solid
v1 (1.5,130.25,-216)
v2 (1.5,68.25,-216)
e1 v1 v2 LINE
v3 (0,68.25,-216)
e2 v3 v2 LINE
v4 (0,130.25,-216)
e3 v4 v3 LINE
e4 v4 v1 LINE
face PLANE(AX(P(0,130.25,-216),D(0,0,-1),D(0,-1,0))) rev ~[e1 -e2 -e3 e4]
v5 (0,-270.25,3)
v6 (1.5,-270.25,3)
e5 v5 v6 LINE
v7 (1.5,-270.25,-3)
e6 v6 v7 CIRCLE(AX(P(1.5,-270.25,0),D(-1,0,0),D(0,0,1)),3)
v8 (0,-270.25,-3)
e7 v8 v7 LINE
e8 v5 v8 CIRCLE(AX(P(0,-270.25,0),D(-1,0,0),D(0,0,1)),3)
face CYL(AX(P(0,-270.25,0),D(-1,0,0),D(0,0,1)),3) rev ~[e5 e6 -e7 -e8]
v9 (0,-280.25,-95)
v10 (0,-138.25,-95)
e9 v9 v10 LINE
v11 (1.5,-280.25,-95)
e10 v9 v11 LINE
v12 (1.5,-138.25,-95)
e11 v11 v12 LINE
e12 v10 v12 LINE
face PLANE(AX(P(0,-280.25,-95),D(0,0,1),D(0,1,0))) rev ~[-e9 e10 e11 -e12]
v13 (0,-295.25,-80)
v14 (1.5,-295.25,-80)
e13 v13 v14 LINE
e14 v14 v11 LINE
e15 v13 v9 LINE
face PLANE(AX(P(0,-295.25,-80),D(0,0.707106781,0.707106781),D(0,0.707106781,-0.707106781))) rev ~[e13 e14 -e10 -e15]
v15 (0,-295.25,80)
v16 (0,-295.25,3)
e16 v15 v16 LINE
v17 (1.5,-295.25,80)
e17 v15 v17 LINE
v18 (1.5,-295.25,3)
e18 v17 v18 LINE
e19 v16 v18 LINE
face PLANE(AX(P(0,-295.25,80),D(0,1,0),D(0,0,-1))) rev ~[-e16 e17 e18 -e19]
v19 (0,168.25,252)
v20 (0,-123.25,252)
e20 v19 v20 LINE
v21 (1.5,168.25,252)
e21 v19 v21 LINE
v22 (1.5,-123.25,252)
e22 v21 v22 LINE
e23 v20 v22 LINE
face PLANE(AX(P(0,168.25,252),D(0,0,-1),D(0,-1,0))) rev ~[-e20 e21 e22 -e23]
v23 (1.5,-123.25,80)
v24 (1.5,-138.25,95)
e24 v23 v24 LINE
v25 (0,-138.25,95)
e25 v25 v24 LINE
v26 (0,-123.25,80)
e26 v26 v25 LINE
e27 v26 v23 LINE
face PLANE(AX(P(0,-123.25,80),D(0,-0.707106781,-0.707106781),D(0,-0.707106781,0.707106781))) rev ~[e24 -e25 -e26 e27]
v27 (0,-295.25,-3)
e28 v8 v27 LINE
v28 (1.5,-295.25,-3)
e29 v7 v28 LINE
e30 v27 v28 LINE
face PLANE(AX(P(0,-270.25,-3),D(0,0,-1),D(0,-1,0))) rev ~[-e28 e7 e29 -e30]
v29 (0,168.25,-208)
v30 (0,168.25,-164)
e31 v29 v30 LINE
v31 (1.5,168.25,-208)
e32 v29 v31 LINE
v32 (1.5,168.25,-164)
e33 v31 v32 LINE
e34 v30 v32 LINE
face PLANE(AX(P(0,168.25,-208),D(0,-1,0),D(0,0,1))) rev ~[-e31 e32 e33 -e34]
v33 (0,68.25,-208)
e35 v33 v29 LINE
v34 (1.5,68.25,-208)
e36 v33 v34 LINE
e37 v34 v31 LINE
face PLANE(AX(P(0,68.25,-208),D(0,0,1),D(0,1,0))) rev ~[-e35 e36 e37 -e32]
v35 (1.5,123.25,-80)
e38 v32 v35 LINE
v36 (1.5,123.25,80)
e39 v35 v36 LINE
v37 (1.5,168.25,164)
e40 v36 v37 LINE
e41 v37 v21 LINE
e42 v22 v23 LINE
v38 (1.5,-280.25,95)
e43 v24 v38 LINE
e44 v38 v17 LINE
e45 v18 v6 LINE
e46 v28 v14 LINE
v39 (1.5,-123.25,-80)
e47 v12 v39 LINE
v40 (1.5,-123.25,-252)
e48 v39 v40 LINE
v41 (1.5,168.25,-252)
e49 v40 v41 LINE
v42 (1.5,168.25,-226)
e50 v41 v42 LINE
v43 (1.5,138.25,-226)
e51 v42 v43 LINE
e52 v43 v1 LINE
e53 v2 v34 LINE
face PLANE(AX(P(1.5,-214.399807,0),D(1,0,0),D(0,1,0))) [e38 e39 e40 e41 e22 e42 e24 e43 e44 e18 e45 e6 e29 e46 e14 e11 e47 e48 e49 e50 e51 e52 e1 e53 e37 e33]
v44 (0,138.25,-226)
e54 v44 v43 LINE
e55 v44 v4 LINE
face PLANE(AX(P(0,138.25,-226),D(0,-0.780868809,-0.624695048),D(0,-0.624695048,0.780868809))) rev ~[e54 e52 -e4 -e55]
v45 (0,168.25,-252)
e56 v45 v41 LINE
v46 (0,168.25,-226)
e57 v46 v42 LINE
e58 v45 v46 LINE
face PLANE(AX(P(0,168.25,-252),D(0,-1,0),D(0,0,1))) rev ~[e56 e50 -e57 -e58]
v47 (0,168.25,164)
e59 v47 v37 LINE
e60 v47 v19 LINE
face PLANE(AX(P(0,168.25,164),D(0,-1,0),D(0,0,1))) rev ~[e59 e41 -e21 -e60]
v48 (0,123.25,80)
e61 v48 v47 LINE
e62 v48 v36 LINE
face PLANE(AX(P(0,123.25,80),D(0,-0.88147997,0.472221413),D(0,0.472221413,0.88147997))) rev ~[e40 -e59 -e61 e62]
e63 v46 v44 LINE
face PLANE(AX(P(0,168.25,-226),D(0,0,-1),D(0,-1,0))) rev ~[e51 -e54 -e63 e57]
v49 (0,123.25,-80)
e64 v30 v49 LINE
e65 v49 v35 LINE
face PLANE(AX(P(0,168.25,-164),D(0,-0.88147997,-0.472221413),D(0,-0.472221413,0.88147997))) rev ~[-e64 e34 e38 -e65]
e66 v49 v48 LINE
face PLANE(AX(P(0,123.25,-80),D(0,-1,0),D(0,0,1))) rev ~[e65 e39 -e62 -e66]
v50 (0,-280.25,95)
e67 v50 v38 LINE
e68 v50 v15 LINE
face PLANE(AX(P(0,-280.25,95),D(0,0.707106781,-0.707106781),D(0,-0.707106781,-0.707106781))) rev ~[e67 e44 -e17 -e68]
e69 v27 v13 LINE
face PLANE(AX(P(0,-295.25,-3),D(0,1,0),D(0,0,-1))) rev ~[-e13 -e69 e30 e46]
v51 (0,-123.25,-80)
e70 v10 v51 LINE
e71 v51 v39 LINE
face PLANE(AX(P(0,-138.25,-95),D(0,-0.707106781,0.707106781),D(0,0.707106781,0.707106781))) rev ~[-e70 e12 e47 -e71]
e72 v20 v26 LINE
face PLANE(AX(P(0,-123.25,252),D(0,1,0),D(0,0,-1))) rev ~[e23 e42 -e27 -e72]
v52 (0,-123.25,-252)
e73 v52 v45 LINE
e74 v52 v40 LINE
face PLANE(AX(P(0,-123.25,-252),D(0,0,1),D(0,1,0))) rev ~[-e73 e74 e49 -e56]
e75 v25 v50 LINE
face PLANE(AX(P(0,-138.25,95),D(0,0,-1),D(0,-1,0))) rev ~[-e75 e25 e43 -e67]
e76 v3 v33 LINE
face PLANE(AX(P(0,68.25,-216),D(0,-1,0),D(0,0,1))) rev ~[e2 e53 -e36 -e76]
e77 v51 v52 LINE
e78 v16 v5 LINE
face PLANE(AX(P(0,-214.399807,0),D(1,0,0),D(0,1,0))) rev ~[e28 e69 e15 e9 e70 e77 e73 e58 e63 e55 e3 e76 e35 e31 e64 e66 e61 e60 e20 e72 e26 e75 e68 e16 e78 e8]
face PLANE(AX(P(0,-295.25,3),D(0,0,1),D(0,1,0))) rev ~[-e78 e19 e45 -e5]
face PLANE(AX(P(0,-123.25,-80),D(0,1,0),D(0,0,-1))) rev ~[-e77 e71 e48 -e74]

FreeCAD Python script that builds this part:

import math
import FreeCAD as App
import Part
import Sketcher
from FreeCAD import Vector
Q = App.Units.Quantity

doc = App.newDocument("Part")
body = doc.addObject("PartDesign::Body", "Body")

sketch1 = body.newObject("Sketcher::SketchObject", "Sketch")
sketch1.AttachmentSupport = (doc.getObject("YZ_Plane"), [""])
sketch1.MapMode = "FlatFace"
sketch1.addGeometry([
    Part.LineSegment(Vector(-123.25, 80, 0), Vector(-138.25, 95, 0)),
    Part.LineSegment(Vector(-138.25, 95, 0), Vector(-280.25, 95, 0)),
    Part.LineSegment(Vector(-280.25, 95, 0), Vector(-295.25, 80, 0)),
    Part.LineSegment(Vector(-295.25, 80, 0), Vector(-295.25, 3, 0)),
    Part.LineSegment(Vector(-295.25, 3, 0), Vector(-270.25, 3, 0)),
    Part.ArcOfCircle(Part.Circle(Vector(-270.25, 0, 0), Vector(0, 0, 1), 3), math.radians(-90), math.radians(90)),
    Part.LineSegment(Vector(-270.25, -3, 0), Vector(-295.25, -3, 0)),
    Part.LineSegment(Vector(-295.25, -3, 0), Vector(-295.25, -80, 0)),
    Part.LineSegment(Vector(-295.25, -80, 0), Vector(-280.25, -95, 0)),
    Part.LineSegment(Vector(-280.25, -95, 0), Vector(-138.25, -95, 0)),
    Part.LineSegment(Vector(-138.25, -95, 0), Vector(-123.25, -80, 0)),
    Part.LineSegment(Vector(-123.25, -80, 0), Vector(-123.25, -252, 0)),
    Part.LineSegment(Vector(-123.25, -252, 0), Vector(168.25, -252, 0)),
    Part.LineSegment(Vector(168.25, -252, 0), Vector(168.25, -226, 0)),
    Part.LineSegment(Vector(168.25, -226, 0), Vector(138.25, -226, 0)),
    Part.LineSegment(Vector(138.25, -226, 0), Vector(130.25, -216, 0)),
    Part.LineSegment(Vector(130.25, -216, 0), Vector(68.25, -216, 0)),
    Part.LineSegment(Vector(68.25, -216, 0), Vector(68.25, -208, 0)),
    Part.LineSegment(Vector(68.25, -208, 0), Vector(168.25, -208, 0)),
    Part.LineSegment(Vector(168.25, -208, 0), Vector(168.25, -164, 0)),
    Part.LineSegment(Vector(168.25, -164, 0), Vector(123.25, -80, 0)),
    Part.LineSegment(Vector(123.25, -80, 0), Vector(123.25, 80, 0)),
    Part.LineSegment(Vector(123.25, 80, 0), Vector(168.25, 164, 0)),
    Part.LineSegment(Vector(168.25, 164, 0), Vector(168.25, 252, 0)),
    Part.LineSegment(Vector(168.25, 252, 0), Vector(-123.25, 252, 0)),
    Part.LineSegment(Vector(-123.25, 252, 0), Vector(-123.25, 80, 0)),
], False)
sketch1.addConstraint([
    Sketcher.Constraint("Coincident", 0, 2, 1, 1),
    Sketcher.Constraint("Coincident", 1, 2, 2, 1),
    Sketcher.Constraint("Coincident", 2, 2, 3, 1),
    Sketcher.Constraint("Coincident", 3, 2, 4, 1),
    Sketcher.Constraint("Tangent", 4, 2, 5, 2),
    Sketcher.Constraint("Tangent", 5, 1, 6, 1),
    Sketcher.Constraint("Coincident", 6, 2, 7, 1),
    Sketcher.Constraint("Coincident", 7, 2, 8, 1),
    Sketcher.Constraint("Coincident", 8, 2, 9, 1),
    Sketcher.Constraint("Coincident", 9, 2, 10, 1),
    Sketcher.Constraint("Coincident", 10, 2, 11, 1),
    Sketcher.Constraint("Coincident", 11, 2, 12, 1),
    Sketcher.Constraint("Coincident", 12, 2, 13, 1),
    Sketcher.Constraint("Coincident", 13, 2, 14, 1),
    Sketcher.Constraint("Coincident", 14, 2, 15, 1),
    Sketcher.Constraint("Coincident", 15, 2, 16, 1),
    Sketcher.Constraint("Coincident", 16, 2, 17, 1),
    Sketcher.Constraint("Coincident", 17, 2, 18, 1),
    Sketcher.Constraint("Coincident", 18, 2, 19, 1),
    Sketcher.Constraint("Coincident", 19, 2, 20, 1),
    Sketcher.Constraint("Coincident", 20, 2, 21, 1),
    Sketcher.Constraint("Coincident", 21, 2, 22, 1),
    Sketcher.Constraint("Coincident", 22, 2, 23, 1),
    Sketcher.Constraint("Coincident", 23, 2, 24, 1),
    Sketcher.Constraint("Coincident", 24, 2, 25, 1),
    Sketcher.Constraint("Coincident", 25, 2, 0, 1),
    Sketcher.Constraint("Horizontal", 1),
    Sketcher.Constraint("Vertical", 3),
    Sketcher.Constraint("Horizontal", 4),
    Sketcher.Constraint("Horizontal", 6),
    Sketcher.Constraint("Vertical", 7),
    Sketcher.Constraint("Horizontal", 9),
    Sketcher.Constraint("Vertical", 11),
    Sketcher.Constraint("Horizontal", 12),
    Sketcher.Constraint("Vertical", 13),
    Sketcher.Constraint("Horizontal", 14),
    Sketcher.Constraint("Horizontal", 16),
    Sketcher.Constraint("Vertical", 17),
    Sketcher.Constraint("Horizontal", 18),
    Sketcher.Constraint("Vertical", 19),
    Sketcher.Constraint("Vertical", 21),
    Sketcher.Constraint("Vertical", 23),
    Sketcher.Constraint("Horizontal", 24),
    Sketcher.Constraint("Vertical", 25),
    Sketcher.Constraint("Symmetric", 10, 2, 21, 2, -1, 1),
    Sketcher.Constraint("Symmetric", 20, 2, 25, 2, -1, 1),
    Sketcher.Constraint("Symmetric", 3, 2, 6, 2, -1),
    Sketcher.Constraint("Symmetric", 1, 2, 8, 2, -1),
    Sketcher.Constraint("Symmetric", 19, 2, 22, 2, -1),
    Sketcher.Constraint("Symmetric", 12, 2, 23, 2, -1),
    Sketcher.Constraint("Perpendicular", 0, 2),
    Sketcher.Constraint("Perpendicular", 2, 8),
    Sketcher.Constraint("Perpendicular", 8, 10),
    Sketcher.Constraint("Horizontal", 7, 2, 10, 2),
    Sketcher.Constraint("Horizontal", 10, 2, 20, 2),
    Sketcher.Constraint("Horizontal", 2, 2, 21, 2),
    Sketcher.Constraint("Radius", 5, Q("3 mm")),
    Sketcher.Constraint("DistanceX", 1, 2, 1, 1, Q("142 mm")),
    Sketcher.Constraint("DistanceX", 4, 1, 4, 2, Q("25 mm")),
    Sketcher.Constraint("DistanceX", 14, 2, 14, 1, Q("30 mm")),
    Sketcher.Constraint("DistanceX", 16, 2, 16, 1, Q("62 mm")),
    Sketcher.Constraint("DistanceX", 18, 1, 18, 2, Q("100 mm")),
    Sketcher.Constraint("DistanceY", 3, 2, 3, 1, Q("77 mm")),
    Sketcher.Constraint("DistanceY", 11, 2, 11, 1, Q("172 mm")),
    Sketcher.Constraint("DistanceY", 13, 1, 13, 2, Q("26 mm")),
    Sketcher.Constraint("DistanceY", 17, 1, 17, 2, Q("8 mm")),
    Sketcher.Constraint("DistanceY", 19, 1, 19, 2, Q("44 mm")),
    Sketcher.Constraint("DistanceY", 23, 1, 23, 2, Q("88 mm")),
    Sketcher.Constraint("DistanceX", 12, 1, 12, 2, Q("291.5 mm")),
    Sketcher.Constraint("DistanceY", -1, 1, 0, 2, Q("95 mm")),
    Sketcher.Constraint("DistanceX", 20, 2, 19, 2, Q("45 mm")),
])
pad1 = body.newObject("PartDesign::Pad", "Pad")
pad1.Profile = sketch1
pad1.Length = 1.5

doc.recompute()
